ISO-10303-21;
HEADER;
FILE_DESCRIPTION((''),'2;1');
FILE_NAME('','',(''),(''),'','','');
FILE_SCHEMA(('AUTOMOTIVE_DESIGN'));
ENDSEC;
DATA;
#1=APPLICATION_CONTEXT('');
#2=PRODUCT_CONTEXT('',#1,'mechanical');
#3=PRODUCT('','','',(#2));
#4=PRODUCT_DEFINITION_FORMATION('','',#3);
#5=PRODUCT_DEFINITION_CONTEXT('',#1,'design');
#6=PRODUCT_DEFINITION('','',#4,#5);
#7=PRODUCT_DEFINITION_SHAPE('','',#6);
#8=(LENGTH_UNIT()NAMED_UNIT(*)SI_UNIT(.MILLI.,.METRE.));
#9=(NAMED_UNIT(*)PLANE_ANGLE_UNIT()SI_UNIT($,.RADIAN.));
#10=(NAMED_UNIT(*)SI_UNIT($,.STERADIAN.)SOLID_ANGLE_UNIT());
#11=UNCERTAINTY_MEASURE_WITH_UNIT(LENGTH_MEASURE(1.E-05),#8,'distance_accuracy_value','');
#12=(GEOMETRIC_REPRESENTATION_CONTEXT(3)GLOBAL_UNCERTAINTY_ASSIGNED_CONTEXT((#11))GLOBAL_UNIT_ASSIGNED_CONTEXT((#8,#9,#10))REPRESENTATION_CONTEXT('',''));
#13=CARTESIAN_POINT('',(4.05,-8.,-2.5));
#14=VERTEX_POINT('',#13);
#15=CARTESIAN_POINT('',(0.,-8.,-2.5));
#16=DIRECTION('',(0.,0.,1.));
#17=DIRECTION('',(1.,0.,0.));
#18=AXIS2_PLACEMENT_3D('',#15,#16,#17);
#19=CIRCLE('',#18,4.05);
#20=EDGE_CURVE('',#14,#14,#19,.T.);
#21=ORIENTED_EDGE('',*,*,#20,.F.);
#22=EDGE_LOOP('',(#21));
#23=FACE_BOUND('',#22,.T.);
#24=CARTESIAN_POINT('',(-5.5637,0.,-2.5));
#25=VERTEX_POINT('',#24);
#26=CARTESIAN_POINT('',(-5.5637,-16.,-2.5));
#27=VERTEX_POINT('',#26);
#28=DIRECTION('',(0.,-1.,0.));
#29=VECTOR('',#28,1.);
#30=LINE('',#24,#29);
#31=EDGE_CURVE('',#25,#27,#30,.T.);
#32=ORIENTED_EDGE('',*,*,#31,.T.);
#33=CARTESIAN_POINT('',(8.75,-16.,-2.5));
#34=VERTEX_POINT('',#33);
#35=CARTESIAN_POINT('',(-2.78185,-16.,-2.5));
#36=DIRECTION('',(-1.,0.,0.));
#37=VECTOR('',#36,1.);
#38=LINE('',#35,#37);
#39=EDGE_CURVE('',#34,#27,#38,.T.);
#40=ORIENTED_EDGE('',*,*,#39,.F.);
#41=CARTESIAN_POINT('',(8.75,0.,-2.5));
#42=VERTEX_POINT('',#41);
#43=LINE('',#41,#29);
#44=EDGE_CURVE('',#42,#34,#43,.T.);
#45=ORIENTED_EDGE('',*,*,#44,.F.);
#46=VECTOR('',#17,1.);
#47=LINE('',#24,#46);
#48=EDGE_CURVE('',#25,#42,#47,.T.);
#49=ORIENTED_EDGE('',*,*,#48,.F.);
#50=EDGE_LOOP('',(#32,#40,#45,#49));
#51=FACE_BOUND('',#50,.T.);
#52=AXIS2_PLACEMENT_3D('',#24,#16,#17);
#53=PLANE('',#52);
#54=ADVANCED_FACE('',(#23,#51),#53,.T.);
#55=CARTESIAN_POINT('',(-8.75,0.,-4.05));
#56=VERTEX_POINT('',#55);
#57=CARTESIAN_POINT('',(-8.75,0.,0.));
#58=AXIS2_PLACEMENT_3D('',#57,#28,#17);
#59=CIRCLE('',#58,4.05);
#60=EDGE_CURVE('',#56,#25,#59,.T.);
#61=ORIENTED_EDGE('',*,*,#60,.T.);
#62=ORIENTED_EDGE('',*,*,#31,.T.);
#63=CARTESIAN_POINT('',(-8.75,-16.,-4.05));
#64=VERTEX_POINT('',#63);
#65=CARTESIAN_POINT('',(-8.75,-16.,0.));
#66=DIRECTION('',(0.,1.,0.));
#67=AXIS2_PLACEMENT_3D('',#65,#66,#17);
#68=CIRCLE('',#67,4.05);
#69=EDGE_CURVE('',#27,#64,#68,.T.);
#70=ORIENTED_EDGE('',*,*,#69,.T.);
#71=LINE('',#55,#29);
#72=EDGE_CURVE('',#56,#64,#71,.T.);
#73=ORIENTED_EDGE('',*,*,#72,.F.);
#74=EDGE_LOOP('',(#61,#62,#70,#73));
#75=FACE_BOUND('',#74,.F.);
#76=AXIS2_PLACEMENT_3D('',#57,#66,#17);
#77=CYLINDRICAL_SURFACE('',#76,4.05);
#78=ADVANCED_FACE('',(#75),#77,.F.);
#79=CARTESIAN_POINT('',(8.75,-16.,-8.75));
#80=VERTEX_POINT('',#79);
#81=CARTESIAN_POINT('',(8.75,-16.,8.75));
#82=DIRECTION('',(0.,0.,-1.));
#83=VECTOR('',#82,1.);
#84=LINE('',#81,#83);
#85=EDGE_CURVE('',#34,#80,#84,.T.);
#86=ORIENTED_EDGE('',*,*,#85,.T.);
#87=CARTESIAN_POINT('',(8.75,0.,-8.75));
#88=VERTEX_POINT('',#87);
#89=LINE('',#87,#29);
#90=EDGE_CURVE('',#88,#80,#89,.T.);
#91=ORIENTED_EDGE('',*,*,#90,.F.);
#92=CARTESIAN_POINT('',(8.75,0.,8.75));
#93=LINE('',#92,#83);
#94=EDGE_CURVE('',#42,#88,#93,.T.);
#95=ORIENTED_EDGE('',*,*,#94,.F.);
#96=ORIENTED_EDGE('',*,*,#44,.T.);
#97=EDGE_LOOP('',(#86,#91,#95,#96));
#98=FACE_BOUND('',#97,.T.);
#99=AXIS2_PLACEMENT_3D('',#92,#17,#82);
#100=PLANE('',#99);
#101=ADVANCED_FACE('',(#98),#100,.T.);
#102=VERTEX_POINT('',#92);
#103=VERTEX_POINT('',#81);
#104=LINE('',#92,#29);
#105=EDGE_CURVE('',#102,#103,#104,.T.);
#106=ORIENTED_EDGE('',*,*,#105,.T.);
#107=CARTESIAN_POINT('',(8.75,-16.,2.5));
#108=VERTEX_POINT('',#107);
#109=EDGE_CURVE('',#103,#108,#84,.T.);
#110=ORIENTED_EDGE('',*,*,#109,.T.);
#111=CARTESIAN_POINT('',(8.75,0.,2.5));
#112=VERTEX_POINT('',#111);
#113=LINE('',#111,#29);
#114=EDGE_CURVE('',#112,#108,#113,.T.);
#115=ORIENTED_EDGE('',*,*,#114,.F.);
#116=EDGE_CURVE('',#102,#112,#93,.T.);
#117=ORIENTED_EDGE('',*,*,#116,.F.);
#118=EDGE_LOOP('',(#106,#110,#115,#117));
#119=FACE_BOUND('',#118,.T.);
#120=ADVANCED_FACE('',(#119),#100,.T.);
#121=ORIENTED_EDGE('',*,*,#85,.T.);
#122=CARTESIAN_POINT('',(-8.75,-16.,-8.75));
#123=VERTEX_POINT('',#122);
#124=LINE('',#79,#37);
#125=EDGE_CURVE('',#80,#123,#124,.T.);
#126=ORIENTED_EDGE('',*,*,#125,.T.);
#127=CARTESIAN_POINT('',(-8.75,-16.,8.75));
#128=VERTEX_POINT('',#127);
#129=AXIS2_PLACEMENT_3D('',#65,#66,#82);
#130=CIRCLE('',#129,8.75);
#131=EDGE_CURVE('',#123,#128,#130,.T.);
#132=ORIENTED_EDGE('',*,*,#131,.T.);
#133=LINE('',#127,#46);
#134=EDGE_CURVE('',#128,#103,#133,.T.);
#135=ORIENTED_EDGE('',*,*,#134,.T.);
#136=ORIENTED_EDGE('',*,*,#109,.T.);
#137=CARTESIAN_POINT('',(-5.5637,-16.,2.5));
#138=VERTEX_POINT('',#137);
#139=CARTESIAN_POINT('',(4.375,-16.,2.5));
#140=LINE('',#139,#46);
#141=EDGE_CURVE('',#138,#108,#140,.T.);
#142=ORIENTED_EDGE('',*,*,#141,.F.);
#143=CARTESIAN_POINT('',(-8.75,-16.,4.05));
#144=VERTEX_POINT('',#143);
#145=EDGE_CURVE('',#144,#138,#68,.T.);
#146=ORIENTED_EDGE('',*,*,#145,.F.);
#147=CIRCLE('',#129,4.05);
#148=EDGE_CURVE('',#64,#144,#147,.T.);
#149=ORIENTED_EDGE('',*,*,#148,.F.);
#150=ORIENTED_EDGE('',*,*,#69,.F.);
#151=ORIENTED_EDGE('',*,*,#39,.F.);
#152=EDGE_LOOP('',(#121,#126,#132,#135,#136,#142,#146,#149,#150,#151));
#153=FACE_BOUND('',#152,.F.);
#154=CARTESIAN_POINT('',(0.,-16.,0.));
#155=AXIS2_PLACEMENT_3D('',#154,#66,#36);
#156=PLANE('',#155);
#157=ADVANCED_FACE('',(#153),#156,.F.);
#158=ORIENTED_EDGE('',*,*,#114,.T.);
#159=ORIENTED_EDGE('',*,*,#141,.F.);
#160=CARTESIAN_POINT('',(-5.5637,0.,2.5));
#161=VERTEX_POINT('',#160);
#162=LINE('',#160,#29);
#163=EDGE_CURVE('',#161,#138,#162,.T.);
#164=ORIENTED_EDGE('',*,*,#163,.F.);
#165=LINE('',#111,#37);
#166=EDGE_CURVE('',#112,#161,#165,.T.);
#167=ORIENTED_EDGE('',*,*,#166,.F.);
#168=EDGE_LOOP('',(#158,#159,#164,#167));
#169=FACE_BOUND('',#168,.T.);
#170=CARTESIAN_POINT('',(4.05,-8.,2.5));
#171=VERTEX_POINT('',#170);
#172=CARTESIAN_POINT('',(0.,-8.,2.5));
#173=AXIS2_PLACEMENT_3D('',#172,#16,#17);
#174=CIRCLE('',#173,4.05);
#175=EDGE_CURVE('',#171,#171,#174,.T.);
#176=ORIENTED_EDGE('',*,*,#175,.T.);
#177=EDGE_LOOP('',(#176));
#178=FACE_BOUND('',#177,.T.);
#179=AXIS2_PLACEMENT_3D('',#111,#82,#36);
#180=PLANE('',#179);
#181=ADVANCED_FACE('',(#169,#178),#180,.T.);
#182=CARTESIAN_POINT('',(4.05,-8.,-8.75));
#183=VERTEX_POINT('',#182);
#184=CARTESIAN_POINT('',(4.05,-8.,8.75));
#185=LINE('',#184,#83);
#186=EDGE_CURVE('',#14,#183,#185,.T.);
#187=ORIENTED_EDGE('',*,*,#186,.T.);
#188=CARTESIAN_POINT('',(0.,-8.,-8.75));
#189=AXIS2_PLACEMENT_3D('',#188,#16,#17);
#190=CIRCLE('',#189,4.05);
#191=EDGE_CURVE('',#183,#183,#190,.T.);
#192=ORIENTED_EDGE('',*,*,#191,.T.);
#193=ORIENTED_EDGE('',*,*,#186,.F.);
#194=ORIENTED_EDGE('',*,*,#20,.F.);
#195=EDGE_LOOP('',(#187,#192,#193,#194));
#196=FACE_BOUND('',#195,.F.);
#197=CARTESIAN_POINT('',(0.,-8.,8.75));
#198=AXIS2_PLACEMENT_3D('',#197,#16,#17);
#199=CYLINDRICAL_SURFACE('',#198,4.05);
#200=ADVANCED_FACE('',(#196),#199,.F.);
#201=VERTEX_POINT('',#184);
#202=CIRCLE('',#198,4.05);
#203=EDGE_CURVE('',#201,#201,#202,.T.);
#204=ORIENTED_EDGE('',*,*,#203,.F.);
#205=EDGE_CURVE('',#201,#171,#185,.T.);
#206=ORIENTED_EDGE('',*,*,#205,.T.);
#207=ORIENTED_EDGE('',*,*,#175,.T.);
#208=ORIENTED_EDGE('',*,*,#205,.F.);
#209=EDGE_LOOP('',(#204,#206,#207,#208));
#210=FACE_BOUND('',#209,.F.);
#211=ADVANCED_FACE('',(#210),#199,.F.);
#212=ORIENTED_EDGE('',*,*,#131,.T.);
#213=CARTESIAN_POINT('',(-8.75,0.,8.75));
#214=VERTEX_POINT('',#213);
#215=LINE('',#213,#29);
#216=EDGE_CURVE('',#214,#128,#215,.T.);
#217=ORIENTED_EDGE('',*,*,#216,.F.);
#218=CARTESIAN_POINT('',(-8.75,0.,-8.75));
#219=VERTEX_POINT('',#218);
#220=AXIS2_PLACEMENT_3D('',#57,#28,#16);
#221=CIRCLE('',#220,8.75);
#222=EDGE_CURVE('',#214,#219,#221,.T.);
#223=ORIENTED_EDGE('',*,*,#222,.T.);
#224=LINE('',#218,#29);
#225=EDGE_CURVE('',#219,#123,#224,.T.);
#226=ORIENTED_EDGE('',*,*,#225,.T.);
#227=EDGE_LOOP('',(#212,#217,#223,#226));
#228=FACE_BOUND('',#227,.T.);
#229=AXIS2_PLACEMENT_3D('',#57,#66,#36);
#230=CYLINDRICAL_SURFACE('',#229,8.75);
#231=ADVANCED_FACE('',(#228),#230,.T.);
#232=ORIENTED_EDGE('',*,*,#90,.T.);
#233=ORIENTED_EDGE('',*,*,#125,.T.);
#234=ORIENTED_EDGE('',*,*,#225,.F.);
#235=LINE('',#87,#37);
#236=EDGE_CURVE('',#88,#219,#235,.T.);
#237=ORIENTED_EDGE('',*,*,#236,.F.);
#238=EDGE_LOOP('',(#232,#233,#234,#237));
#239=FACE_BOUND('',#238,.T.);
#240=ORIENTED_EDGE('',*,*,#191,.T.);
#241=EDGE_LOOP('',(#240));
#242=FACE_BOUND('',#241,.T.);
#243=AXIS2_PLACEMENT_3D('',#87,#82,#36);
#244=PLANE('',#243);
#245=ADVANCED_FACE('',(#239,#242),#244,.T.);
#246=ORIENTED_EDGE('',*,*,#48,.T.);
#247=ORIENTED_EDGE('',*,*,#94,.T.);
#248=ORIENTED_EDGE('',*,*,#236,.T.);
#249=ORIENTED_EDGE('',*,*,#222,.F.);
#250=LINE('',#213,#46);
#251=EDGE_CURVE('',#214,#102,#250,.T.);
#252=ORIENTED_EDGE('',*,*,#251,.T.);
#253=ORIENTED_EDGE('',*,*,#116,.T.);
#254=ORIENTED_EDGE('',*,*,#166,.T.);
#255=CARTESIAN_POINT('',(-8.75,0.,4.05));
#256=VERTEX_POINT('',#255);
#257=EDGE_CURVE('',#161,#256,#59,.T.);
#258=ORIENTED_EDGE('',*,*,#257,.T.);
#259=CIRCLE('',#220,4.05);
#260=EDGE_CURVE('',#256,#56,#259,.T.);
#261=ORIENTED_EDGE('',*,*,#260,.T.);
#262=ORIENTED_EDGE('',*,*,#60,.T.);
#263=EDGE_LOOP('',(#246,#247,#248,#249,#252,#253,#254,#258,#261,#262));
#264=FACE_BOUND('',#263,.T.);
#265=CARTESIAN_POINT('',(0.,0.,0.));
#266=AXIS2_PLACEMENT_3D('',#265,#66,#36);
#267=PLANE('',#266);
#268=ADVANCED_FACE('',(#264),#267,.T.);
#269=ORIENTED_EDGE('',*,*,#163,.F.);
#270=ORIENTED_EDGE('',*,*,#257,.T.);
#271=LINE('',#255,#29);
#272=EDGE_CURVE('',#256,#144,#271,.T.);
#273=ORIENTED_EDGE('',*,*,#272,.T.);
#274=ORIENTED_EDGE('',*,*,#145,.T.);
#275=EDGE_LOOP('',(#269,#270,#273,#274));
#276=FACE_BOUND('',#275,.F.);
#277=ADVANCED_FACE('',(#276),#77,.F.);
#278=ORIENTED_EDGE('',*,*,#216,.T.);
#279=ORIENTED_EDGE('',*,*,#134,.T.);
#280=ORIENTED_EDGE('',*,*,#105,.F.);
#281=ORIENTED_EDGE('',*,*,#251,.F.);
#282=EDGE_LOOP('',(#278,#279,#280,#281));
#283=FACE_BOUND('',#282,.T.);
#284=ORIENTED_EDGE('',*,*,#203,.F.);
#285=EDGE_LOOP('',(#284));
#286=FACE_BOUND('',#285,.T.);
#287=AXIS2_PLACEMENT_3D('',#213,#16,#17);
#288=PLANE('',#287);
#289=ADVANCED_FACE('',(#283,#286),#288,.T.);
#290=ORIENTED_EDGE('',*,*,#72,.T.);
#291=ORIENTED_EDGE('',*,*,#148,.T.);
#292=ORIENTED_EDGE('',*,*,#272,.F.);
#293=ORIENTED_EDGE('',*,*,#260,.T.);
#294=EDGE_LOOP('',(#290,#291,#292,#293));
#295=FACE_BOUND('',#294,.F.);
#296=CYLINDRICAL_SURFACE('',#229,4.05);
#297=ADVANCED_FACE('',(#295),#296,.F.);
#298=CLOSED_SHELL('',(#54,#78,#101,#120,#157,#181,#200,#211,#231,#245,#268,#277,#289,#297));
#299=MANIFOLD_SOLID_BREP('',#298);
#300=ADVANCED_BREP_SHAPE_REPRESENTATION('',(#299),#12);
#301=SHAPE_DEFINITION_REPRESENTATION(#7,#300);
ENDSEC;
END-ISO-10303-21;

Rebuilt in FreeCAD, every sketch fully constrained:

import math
import FreeCAD as App
import Part
import Sketcher

V = App.Vector

doc = App.newDocument("Part")
params = doc.addObject("Spreadsheet::Sheet", "Params")
for row, (alias, value) in enumerate([
    ("sketch1_radius", "8.75 mm"),
    ("sketch1_radius2", "4.05 mm"),
    ("pad1_length", "16 mm"),
    ("sketch2_diameter", "8.1 mm"),
    ("pocket1_length", "16 mm"),
    ("sketch3_diameter", "8.1 mm"),
    ("sketch4_height", "5 mm"),
], start=1):
    params.set(f"A{row}", alias)
    params.set(f"B{row}", "=" + value)
    params.setAlias(f"B{row}", alias)

body = doc.addObject("PartDesign::Body", "Body")

# Sketch on XZ plane
sketch1 = doc.addObject("Sketcher::SketchObject", "Sketch")
body.addObject(sketch1)
sketch1.AttachmentSupport = (doc.XZ_Plane, [""])
sketch1.MapMode = "FlatFace"
sketch1.addGeometry(Part.LineSegment(V(8.8, -8.8, 0), V(-8.8, -8.8, 0)), False)
sketch1.addGeometry(Part.ArcOfCircle(Part.Circle(V(-8.8, 0, 0), V(0, 0, 1), 8.8), math.radians(90), math.radians(270)), False)
sketch1.addGeometry(Part.LineSegment(V(-8.8, 8.8, 0), V(8.8, 8.8, 0)), False)
sketch1.addGeometry(Part.LineSegment(V(8.8, 8.8, 0), V(8.8, -8.8, 0)), False)
sketch1.addGeometry(Part.ArcOfCircle(Part.Circle(V(-8.8, 0, 0), V(0, 0, 1), 4), math.radians(90), math.radians(270)), False)
sketch1.addGeometry(Part.LineSegment(V(-8.8, -4, 0), V(-8.8, 4, 0)), False)
sketch1.addConstraint(Sketcher.Constraint("Tangent", 0, 2, 1, 2))
sketch1.addConstraint(Sketcher.Constraint("Tangent", 1, 1, 2, 1))
sketch1.addConstraint(Sketcher.Constraint("Coincident", 2, 2, 3, 1))
sketch1.addConstraint(Sketcher.Constraint("Coincident", 3, 2, 0, 1))
sketch1.addConstraint(Sketcher.Constraint("Coincident", 4, 1, 5, 2))
sketch1.addConstraint(Sketcher.Constraint("Coincident", 5, 1, 4, 2))
sketch1.addConstraint(Sketcher.Constraint("Horizontal", 0))
sketch1.addConstraint(Sketcher.Constraint("Horizontal", 2))
sketch1.addConstraint(Sketcher.Constraint("Vertical", 3))
sketch1.addConstraint(Sketcher.Constraint("Vertical", 5))
sketch1.addConstraint(Sketcher.Constraint("Coincident", 4, 3, 1, 3))
sketch1.addConstraint(Sketcher.Constraint("Symmetric", 0, 2, 2, 2, -1, 1))
sketch1.addConstraint(Sketcher.Constraint("Vertical", 1, 1, 4, 1))
sketch1.addConstraint(Sketcher.Constraint("Equal", 2, 3))
sketch1.addConstraint(Sketcher.Constraint("Radius", 1, 8.75))
sketch1.addConstraint(Sketcher.Constraint("Radius", 4, 4.05))
sketch1.setExpression("Constraints[14]", "Params.sketch1_radius")
sketch1.setExpression("Constraints[15]", "Params.sketch1_radius2")
pad1 = doc.addObject("PartDesign::Pad", "Pad")
body.addObject(pad1)
pad1.Profile = sketch1
pad1.setExpression("Length", "Params.pad1_length")

# Sketch on XZ plane
sketch2 = doc.addObject("Sketcher::SketchObject", "Sketch001")
body.addObject(sketch2)
sketch2.AttachmentSupport = (doc.XZ_Plane, [""])
sketch2.MapMode = "FlatFace"
sketch2.addGeometry(Part.Circle(V(-8.8, 0, 0), V(0, 0, 1), 4), False)
sketch2.addConstraint(Sketcher.Constraint("PointOnObject", 0, 3, -1))
sketch2.addConstraint(Sketcher.Constraint("Diameter", 0, 8.1))
sketch2.addConstraint(Sketcher.Constraint("DistanceX", 0, 3, -1, 1, 8.75))
sketch2.setExpression("Constraints[1]", "Params.sketch2_diameter")
pocket1 = doc.addObject("PartDesign::Pocket", "Pocket")
body.addObject(pocket1)
pocket1.Profile = sketch2
pocket1.setExpression("Length", "Params.pocket1_length")
pocket1.Reversed = True

# Sketch on XY plane
sketch3 = doc.addObject("Sketcher::SketchObject", "Sketch002")
body.addObject(sketch3)
sketch3.AttachmentSupport = (doc.XY_Plane, [""])
sketch3.MapMode = "FlatFace"
sketch3.AttachmentOffset = App.Placement(V(0, 0, 8.75), App.Rotation())
sketch3.addGeometry(Part.Circle(V(0, -8, 0), V(0, 0, 1), 4), False)
sketch3.addConstraint(Sketcher.Constraint("PointOnObject", 0, 3, -2))
sketch3.addConstraint(Sketcher.Constraint("Diameter", 0, 8.1))
sketch3.addConstraint(Sketcher.Constraint("DistanceY", 0, 3, -1, 1, 8.0))
sketch3.setExpression("Constraints[1]", "Params.sketch3_diameter")
pocket2 = doc.addObject("PartDesign::Pocket", "Pocket001")
body.addObject(pocket2)
pocket2.Profile = sketch3
pocket2.Type = "UpToFirst"

# Sketch on XZ plane
sketch4 = doc.addObject("Sketcher::SketchObject", "Sketch003")
body.addObject(sketch4)
sketch4.AttachmentSupport = (doc.XZ_Plane, [""])
sketch4.MapMode = "FlatFace"
sketch4.addGeometry(Part.LineSegment(V(-6, -2, 0), V(-6, 2, 0)), False)
sketch4.addGeometry(Part.LineSegment(V(-6, 2, 0), V(9, 2, 0)), False)
sketch4.addGeometry(Part.LineSegment(V(9, 2, 0), V(9, -2, 0)), False)
sketch4.addGeometry(Part.LineSegment(V(9, -2, 0), V(-6, -2, 0)), False)
sketch4.addConstraint(Sketcher.Constraint("Coincident", 0, 2, 1, 1))
sketch4.addConstraint(Sketcher.Constraint("Coincident", 1, 2, 2, 1))
sketch4.addConstraint(Sketcher.Constraint("Coincident", 2, 2, 3, 1))
sketch4.addConstraint(Sketcher.Constraint("Coincident", 3, 2, 0, 1))
sketch4.addConstraint(Sketcher.Constraint("Vertical", 0))
sketch4.addConstraint(Sketcher.Constraint("Horizontal", 1))
sketch4.addConstraint(Sketcher.Constraint("Vertical", 2))
sketch4.addConstraint(Sketcher.Constraint("Horizontal", 3))
sketch4.addConstraint(Sketcher.Constraint("DistanceY", 0, 1, 0, 2, 5.0))
sketch4.addConstraint(Sketcher.Constraint("DistanceY", -1, 1, 0, 2, 2.5))
sketch4.addConstraint(Sketcher.Constraint("DistanceX", -1, 1, 1, 2, 8.75))
sketch4.addConstraint(Sketcher.Constraint("DistanceX", 1, 1, 1, 2, 14.3137))
sketch4.setExpression("Constraints[8]", "Params.sketch4_height")
pocket3 = doc.addObject("PartDesign::Pocket", "Pocket002")
body.addObject(pocket3)
pocket3.Profile = sketch4
pocket3.Type = "UpToFirst"
pocket3.Reversed = True

doc.recompute()
